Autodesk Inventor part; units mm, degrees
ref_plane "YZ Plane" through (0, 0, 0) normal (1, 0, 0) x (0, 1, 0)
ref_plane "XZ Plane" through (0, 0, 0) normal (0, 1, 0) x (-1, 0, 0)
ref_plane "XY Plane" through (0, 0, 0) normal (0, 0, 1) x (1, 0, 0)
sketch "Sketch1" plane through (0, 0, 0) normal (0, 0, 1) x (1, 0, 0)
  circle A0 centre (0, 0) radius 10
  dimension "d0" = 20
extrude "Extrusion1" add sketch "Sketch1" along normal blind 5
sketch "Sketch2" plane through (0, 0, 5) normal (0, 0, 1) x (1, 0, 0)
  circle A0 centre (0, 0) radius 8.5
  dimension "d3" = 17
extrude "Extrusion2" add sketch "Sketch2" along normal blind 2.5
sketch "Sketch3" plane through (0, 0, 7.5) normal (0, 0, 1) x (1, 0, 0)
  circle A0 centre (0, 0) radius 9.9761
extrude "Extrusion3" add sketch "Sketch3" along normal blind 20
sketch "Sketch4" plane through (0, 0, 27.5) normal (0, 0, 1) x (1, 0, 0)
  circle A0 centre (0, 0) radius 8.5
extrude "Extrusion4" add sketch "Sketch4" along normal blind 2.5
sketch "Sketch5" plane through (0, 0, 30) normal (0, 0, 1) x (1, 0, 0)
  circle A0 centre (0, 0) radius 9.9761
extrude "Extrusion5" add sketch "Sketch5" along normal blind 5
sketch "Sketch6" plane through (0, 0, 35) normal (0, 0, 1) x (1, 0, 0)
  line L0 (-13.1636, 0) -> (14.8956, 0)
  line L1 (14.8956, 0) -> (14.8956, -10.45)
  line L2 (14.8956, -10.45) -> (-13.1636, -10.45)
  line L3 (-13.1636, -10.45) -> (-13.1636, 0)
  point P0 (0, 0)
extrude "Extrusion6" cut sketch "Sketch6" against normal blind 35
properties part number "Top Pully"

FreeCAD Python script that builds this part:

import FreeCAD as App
import Part
import Sketcher
from FreeCAD import Vector

doc = App.newDocument("Part")
params = doc.addObject("Spreadsheet::Sheet", "Params")
for row, (alias, value) in enumerate([
    ("sketch1_diameter", "20 mm"),
    ("pad1_length", "5 mm"),
    ("sketch2_diameter", "17 mm"),
    ("pad2_length", "2.5 mm"),
    ("pad3_length", "20 mm"),
    ("sketch4_diameter", "17 mm"),
    ("pad4_length", "2.5 mm"),
    ("pad5_length", "5 mm"),
    ("sketch6_height", "10.45 mm"),
    ("pocket1_length", "35 mm"),
], start=1):
    params.set(f"A{row}", alias)
    params.set(f"B{row}", "=" + value)
    params.setAlias(f"B{row}", alias)

body = doc.addObject("PartDesign::Body", "Body")

sketch1 = doc.addObject("Sketcher::SketchObject", "Sketch")
body.addObject(sketch1)
sketch1.AttachmentSupport = (doc.XY_Plane, [""])
sketch1.MapMode = "FlatFace"
sketch1.addGeometry(Part.Circle(Vector(0, 0, 0), Vector(0, 0, 1), 10), False)
sketch1.addConstraint([
    Sketcher.Constraint("Coincident", 0, 3, -1, 1),
    Sketcher.Constraint("Diameter", 0, 20.0),
])
sketch1.setExpression("Constraints[1]", "Params.sketch1_diameter")
pad1 = doc.addObject("PartDesign::Pad", "Pad")
body.addObject(pad1)
pad1.Profile = sketch1
pad1.setExpression("Length", "Params.pad1_length")

sketch2 = doc.addObject("Sketcher::SketchObject", "Sketch001")
body.addObject(sketch2)
sketch2.AttachmentSupport = (doc.XY_Plane, [""])
sketch2.MapMode = "FlatFace"
sketch2.AttachmentOffset = App.Placement(Vector(0, 0, 5), App.Rotation())
sketch2.addGeometry(Part.Circle(Vector(0, 0, 0), Vector(0, 0, 1), 8), False)
sketch2.addConstraint([
    Sketcher.Constraint("Coincident", 0, 3, -1, 1),
    Sketcher.Constraint("Diameter", 0, 17.0),
])
sketch2.setExpression("Constraints[1]", "Params.sketch2_diameter")
pad2 = doc.addObject("PartDesign::Pad", "Pad001")
body.addObject(pad2)
pad2.Profile = sketch2
pad2.setExpression("Length", "Params.pad2_length")

sketch3 = doc.addObject("Sketcher::SketchObject", "Sketch002")
body.addObject(sketch3)
sketch3.AttachmentSupport = (doc.XY_Plane, [""])
sketch3.MapMode = "FlatFace"
sketch3.AttachmentOffset = App.Placement(Vector(0, 0, 7.5), App.Rotation())
sketch3.addGeometry(Part.Circle(Vector(0, 0, 0), Vector(0, 0, 1), 10), False)
sketch3.addConstraint([
    Sketcher.Constraint("Coincident", 0, 3, -1, 1),
    Sketcher.Constraint("Diameter", 0, 19.9522),
])
pad3 = doc.addObject("PartDesign::Pad", "Pad002")
body.addObject(pad3)
pad3.Profile = sketch3
pad3.setExpression("Length", "Params.pad3_length")

sketch4 = doc.addObject("Sketcher::SketchObject", "Sketch003")
body.addObject(sketch4)
sketch4.AttachmentSupport = (doc.XY_Plane, [""])
sketch4.MapMode = "FlatFace"
sketch4.AttachmentOffset = App.Placement(Vector(0, 0, 27.5), App.Rotation())
sketch4.addGeometry(Part.Circle(Vector(0, 0, 0), Vector(0, 0, 1), 8), False)
sketch4.addConstraint([
    Sketcher.Constraint("Coincident", 0, 3, -1, 1),
    Sketcher.Constraint("Diameter", 0, 17.0),
])
sketch4.setExpression("Constraints[1]", "Params.sketch4_diameter")
pad4 = doc.addObject("PartDesign::Pad", "Pad003")
body.addObject(pad4)
pad4.Profile = sketch4
pad4.setExpression("Length", "Params.pad4_length")

sketch5 = doc.addObject("Sketcher::SketchObject", "Sketch004")
body.addObject(sketch5)
sketch5.AttachmentSupport = (doc.XY_Plane, [""])
sketch5.MapMode = "FlatFace"
sketch5.AttachmentOffset = App.Placement(Vector(0, 0, 30), App.Rotation())
sketch5.addGeometry(Part.Circle(Vector(0, 0, 0), Vector(0, 0, 1), 10), False)
sketch5.addConstraint([
    Sketcher.Constraint("Coincident", 0, 3, -1, 1),
    Sketcher.Constraint("Diameter", 0, 19.9522),
])
pad5 = doc.addObject("PartDesign::Pad", "Pad004")
body.addObject(pad5)
pad5.Profile = sketch5
pad5.setExpression("Length", "Params.pad5_length")

sketch6 = doc.addObject("Sketcher::SketchObject", "Sketch005")
body.addObject(sketch6)
sketch6.AttachmentSupport = (doc.XY_Plane, [""])
sketch6.MapMode = "FlatFace"
sketch6.AttachmentOffset = App.Placement(Vector(0, 0, 35), App.Rotation())
sketch6.addGeometry([
    Part.LineSegment(Vector(15, 0, 0), Vector(-13, 0, 0)),
    Part.LineSegment(Vector(-13, 0, 0), Vector(-13, -10, 0)),
    Part.LineSegment(Vector(-13, -10, 0), Vector(15, -10, 0)),
    Part.LineSegment(Vector(15, -10, 0), Vector(15, 0, 0)),
], False)
sketch6.addConstraint([
    Sketcher.Constraint("Coincident", 0, 2, 1, 1),
    Sketcher.Constraint("Coincident", 1, 2, 2, 1),
    Sketcher.Constraint("Coincident", 2, 2, 3, 1),
    Sketcher.Constraint("Coincident", 3, 2, 0, 1),
    Sketcher.Constraint("Horizontal", 0),
    Sketcher.Constraint("Vertical", 1),
    Sketcher.Constraint("Horizontal", 2),
    Sketcher.Constraint("Vertical", 3),
    Sketcher.Constraint("PointOnObject", 0, 2, -1),
    Sketcher.Constraint("DistanceY", 1, 2, 1, 1, 10.45),
    Sketcher.Constraint("DistanceX", 0, 2, 0, 1, 28.0592),
    Sketcher.Constraint("DistanceX", 0, 2, -1, 1, 13.1636),
])
sketch6.setExpression("Constraints[9]", "Params.sketch6_height")
pocket1 = doc.addObject("PartDesign::Pocket", "Pocket")
body.addObject(pocket1)
pocket1.Profile = sketch6
pocket1.setExpression("Length", "Params.pocket1_length")

doc.recompute()
